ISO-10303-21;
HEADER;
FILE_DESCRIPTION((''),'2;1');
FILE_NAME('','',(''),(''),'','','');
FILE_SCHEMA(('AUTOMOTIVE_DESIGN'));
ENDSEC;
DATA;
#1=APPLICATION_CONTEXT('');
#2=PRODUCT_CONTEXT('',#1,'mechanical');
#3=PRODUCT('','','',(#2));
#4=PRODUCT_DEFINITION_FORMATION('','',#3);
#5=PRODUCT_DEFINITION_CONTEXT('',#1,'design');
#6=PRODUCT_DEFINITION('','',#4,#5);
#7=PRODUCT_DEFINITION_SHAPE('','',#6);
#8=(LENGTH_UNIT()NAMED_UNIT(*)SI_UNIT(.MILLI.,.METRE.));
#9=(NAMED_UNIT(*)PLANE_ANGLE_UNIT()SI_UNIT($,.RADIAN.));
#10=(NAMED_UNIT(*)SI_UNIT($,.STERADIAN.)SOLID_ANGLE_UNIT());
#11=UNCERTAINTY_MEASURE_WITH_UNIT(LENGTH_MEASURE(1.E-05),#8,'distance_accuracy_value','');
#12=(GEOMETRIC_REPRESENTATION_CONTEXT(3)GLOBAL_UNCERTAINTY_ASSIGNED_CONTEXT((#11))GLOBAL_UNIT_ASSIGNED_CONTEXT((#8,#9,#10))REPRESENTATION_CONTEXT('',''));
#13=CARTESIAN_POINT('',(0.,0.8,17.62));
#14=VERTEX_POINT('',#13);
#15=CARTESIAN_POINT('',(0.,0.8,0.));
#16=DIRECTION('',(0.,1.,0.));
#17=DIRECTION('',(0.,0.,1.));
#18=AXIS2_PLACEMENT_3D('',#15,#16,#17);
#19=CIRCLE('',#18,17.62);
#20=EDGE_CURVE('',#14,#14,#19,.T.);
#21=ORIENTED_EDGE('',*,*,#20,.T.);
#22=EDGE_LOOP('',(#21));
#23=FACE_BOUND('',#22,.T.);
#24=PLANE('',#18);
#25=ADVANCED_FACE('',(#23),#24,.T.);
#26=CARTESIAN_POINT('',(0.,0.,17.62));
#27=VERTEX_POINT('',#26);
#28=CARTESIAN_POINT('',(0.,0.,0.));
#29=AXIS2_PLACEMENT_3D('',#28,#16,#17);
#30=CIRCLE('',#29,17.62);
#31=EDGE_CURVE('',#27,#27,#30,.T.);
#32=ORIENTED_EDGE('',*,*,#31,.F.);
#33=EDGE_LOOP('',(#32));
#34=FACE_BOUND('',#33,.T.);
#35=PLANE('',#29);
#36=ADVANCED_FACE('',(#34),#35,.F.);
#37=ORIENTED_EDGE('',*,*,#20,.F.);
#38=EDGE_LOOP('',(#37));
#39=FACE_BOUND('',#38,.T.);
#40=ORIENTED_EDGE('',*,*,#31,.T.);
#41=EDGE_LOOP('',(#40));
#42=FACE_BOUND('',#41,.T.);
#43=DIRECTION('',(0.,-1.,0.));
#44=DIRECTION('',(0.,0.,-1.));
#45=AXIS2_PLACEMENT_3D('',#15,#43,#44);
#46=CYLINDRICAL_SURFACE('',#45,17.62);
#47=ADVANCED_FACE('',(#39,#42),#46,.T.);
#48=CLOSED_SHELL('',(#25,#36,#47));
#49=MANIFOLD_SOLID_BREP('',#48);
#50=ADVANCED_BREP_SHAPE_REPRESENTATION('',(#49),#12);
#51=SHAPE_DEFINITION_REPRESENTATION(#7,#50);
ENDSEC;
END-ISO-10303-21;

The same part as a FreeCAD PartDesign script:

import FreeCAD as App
import Part
import Sketcher

V = App.Vector

doc = App.newDocument("Part")
body = doc.addObject("PartDesign::Body", "Body")

# Sketch on XZ plane
sketch1 = body.newObject("Sketcher::SketchObject", "Sketch")
sketch1.AttachmentSupport = (doc.getObject("XZ_Plane"), [""])
sketch1.MapMode = "FlatFace"
sketch1.addGeometry(Part.Circle(V(0, 0, 0), V(0, 0, 1), 18), False)
sketch1.addConstraint([
    Sketcher.Constraint("Coincident", 0, 3, -1, 1),
    Sketcher.Constraint("Diameter", 0, 35.24),
])
pad1 = body.newObject("PartDesign::Pad", "Pad")
pad1.Profile = sketch1
pad1.Length = 0.8
pad1.Reversed = True

doc.recompute()
